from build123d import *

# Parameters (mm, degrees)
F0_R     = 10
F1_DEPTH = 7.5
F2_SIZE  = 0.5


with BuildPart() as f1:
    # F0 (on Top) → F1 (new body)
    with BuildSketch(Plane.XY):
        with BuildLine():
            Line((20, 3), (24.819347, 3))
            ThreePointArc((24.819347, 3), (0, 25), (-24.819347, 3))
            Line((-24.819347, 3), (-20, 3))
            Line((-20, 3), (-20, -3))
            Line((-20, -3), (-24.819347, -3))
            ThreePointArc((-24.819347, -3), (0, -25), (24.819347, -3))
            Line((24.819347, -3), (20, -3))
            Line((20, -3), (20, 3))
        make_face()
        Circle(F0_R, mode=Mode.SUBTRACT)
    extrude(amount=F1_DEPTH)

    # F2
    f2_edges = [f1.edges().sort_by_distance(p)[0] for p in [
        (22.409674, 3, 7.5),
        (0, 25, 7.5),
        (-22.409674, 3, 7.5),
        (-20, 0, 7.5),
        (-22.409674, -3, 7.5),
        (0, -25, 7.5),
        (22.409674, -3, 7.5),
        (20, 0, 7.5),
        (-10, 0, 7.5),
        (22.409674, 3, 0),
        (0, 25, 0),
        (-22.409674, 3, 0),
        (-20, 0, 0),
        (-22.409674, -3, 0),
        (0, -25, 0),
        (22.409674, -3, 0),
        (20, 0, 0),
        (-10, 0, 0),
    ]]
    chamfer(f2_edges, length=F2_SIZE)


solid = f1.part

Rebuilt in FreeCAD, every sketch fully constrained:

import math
import FreeCAD as App
import Part
import Sketcher


def edges_at(feature, points):
    """Names of the edges that pass closest to the given points."""
    edges = feature.Shape.Edges
    near = lambda p: min(range(len(edges)), key=lambda i: edges[i].distToShape(Part.Vertex(*p))[0])
    return sorted({f"Edge{near(p) + 1}" for p in points})

doc = App.newDocument("Part")
body = doc.addObject("PartDesign::Body", "Body")

# Sketch on XY plane
sketch1 = body.newObject("Sketcher::SketchObject", "Sketch")
sketch1.AttachmentSupport = (doc.getObject("XY_Plane"), [""])
sketch1.MapMode = "FlatFace"
sketch1.addGeometry([
    Part.LineSegment(App.Vector(20, 3, 0), App.Vector(24.8, 3, 0)),  # 0
    Part.ArcOfCircle(Part.Circle(App.Vector(0, 0, 0), App.Vector(0, 0, 1), 25), math.radians(7), math.radians(173)),  # 1
    Part.LineSegment(App.Vector(-24.8, 3, 0), App.Vector(-20, 3, 0)),  # 2
    Part.LineSegment(App.Vector(-20, 3, 0), App.Vector(-20, -3, 0)),  # 3
    Part.LineSegment(App.Vector(-20, -3, 0), App.Vector(-24.8, -3, 0)),  # 4
    Part.ArcOfCircle(Part.Circle(App.Vector(0, 0, 0), App.Vector(0, 0, 1), 25), math.radians(-173), math.radians(-7)),  # 5
    Part.LineSegment(App.Vector(24.8, -3, 0), App.Vector(20, -3, 0)),  # 6
    Part.LineSegment(App.Vector(20, -3, 0), App.Vector(20, 3, 0)),  # 7
    Part.Circle(App.Vector(0, 0, 0), App.Vector(0, 0, 1), 10),  # 8
], False)
sketch1.addConstraint([
    Sketcher.Constraint("Coincident", 0, 2, 1, 1),
    Sketcher.Constraint("Coincident", 1, 2, 2, 1),
    Sketcher.Constraint("Coincident", 2, 2, 3, 1),
    Sketcher.Constraint("Coincident", 3, 2, 4, 1),
    Sketcher.Constraint("Coincident", 4, 2, 5, 1),
    Sketcher.Constraint("Coincident", 5, 2, 6, 1),
    Sketcher.Constraint("Coincident", 6, 2, 7, 1),
    Sketcher.Constraint("Coincident", 7, 2, 0, 1),
    Sketcher.Constraint("Horizontal", 0),
    Sketcher.Constraint("Horizontal", 2),
    Sketcher.Constraint("Vertical", 3),
    Sketcher.Constraint("Horizontal", 4),
    Sketcher.Constraint("Horizontal", 6),
    Sketcher.Constraint("Vertical", 7),
    Sketcher.Constraint("Coincident", 1, 3, -1, 1),
    Sketcher.Constraint("Coincident", 5, 3, -1, 1),
    Sketcher.Constraint("Coincident", 8, 3, -1, 1),
    Sketcher.Constraint("Equal", 1, 5),
    Sketcher.Constraint("Symmetric", 2, 2, 6, 2, -1, 1),
    Sketcher.Constraint("Horizontal", 0, 2, 1, 2),
    Sketcher.Constraint("Horizontal", 4, 2, 5, 2),
    Sketcher.Constraint("Diameter", 8, 20.0),
    Sketcher.Constraint("Radius", 1, 25.0),
    Sketcher.Constraint("DistanceY", 3, 2, 3, 1, 6.0),
    Sketcher.Constraint("DistanceX", 2, 2, -1, 1, 20.0),
])
pad1 = body.newObject("PartDesign::Pad", "Pad")
pad1.Profile = sketch1
pad1.Length = 7.5
doc.recompute()

chamfer = body.newObject("PartDesign::Chamfer", "Chamfer")
chamfer.Base = (pad1, edges_at(pad1, [
    (22.41, 3, 7.5),
    (0, 25, 7.5),
    (-22.41, 3, 7.5),
    (-20, 0, 7.5),
    (-22.41, -3, 7.5),
    (0, -25, 7.5),
    (22.41, -3, 7.5),
    (20, 0, 7.5),
    (-10, 0, 7.5),
    (22.41, 3, 0),
    (0, 25, 0),
    (-22.41, 3, 0),
    (-20, 0, 0),
    (-22.41, -3, 0),
    (0, -25, 0),
    (22.41, -3, 0),
    (20, 0, 0),
    (-10, 0, 0),
]))
chamfer.Size = 0.5

doc.recompute()
